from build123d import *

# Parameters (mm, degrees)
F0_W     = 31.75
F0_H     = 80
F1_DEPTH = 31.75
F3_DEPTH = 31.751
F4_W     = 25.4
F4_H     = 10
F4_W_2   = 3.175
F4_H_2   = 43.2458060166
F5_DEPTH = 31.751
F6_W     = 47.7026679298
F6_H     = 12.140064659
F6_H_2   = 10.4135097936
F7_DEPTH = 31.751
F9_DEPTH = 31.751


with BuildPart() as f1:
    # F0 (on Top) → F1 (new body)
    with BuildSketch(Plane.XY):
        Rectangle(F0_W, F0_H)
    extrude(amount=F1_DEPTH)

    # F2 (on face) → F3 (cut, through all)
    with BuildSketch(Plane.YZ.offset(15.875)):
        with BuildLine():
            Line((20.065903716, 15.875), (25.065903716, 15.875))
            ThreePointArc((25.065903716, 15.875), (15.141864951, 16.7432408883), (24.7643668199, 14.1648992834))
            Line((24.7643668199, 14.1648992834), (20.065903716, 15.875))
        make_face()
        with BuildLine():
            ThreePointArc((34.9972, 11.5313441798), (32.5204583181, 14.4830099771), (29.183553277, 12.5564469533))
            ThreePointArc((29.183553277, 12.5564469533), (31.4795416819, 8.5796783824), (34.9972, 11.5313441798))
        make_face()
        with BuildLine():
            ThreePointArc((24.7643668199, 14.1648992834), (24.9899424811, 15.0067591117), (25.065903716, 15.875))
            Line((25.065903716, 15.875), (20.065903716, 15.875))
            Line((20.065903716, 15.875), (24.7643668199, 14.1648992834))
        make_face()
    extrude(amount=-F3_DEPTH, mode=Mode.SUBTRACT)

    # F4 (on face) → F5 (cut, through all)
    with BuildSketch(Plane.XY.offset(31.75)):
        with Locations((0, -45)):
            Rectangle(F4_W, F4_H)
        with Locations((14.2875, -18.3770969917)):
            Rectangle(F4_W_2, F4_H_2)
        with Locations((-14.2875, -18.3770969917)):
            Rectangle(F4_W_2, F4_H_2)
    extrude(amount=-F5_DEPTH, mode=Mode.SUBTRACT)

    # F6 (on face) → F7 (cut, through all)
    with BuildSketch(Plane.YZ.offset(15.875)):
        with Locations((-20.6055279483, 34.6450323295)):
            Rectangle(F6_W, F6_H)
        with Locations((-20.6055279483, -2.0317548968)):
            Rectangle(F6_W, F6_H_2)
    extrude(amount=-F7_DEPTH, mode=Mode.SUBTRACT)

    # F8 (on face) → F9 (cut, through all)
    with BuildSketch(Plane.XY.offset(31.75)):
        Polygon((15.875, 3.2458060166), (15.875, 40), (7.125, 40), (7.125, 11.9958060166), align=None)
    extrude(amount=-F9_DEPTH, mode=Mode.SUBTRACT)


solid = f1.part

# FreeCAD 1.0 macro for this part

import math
import FreeCAD as App
import Part
import Sketcher
from FreeCAD import Vector
Q = App.Units.Quantity

doc = App.newDocument("Part")
body = doc.addObject("PartDesign::Body", "Body")

sketch1 = body.newObject("Sketcher::SketchObject", "Sketch")
sketch1.AttachmentSupport = (doc.getObject("XY_Plane"), [""])
sketch1.MapMode = "FlatFace"
sketch1.addGeometry([
    Part.LineSegment(Vector(-16, 40, 0), Vector(-16, -40, 0)),
    Part.LineSegment(Vector(-16, -40, 0), Vector(16, -40, 0)),
    Part.LineSegment(Vector(16, -40, 0), Vector(16, 40, 0)),
    Part.LineSegment(Vector(16, 40, 0), Vector(-16, 40, 0)),
], False)
sketch1.addConstraint([
    Sketcher.Constraint("Coincident", 0, 2, 1, 1),
    Sketcher.Constraint("Coincident", 1, 2, 2, 1),
    Sketcher.Constraint("Coincident", 2, 2, 3, 1),
    Sketcher.Constraint("Coincident", 3, 2, 0, 1),
    Sketcher.Constraint("Vertical", 0),
    Sketcher.Constraint("Horizontal", 1),
    Sketcher.Constraint("Vertical", 2),
    Sketcher.Constraint("Horizontal", 3),
    Sketcher.Constraint("Symmetric", 0, 2, 2, 2, -1, 1),
    Sketcher.Constraint("DistanceX", 1, 1, 1, 2, Q("1.25 in")),
    Sketcher.Constraint("DistanceY", 0, 2, 0, 1, 80.0),
])
pad1 = body.newObject("PartDesign::Pad", "Pad")
pad1.Profile = sketch1
pad1.Length = Q("1.25 in")

sketch2 = body.newObject("Sketcher::SketchObject", "Sketch001")
sketch2.AttachmentSupport = (doc.getObject("YZ_Plane"), [""])
sketch2.MapMode = "FlatFace"
sketch2.AttachmentOffset = App.Placement(Vector(0, 0, 0.625 * 25.4), App.Rotation())
sketch2.addGeometry([
    Part.ArcOfCircle(Part.Circle(Vector(20.1, 15.9, 0), Vector(0, 0, 1), 5), math.radians(0), math.radians(340)),
    Part.ArcOfCircle(Part.Circle(Vector(20.1, 15.9, 0), Vector(0, 0, 1), 5), math.radians(-20), math.radians(0)),
    Part.ArcOfCircle(Part.Circle(Vector(32, 11.5, 0), Vector(0, 0, 1), 3), math.radians(0), math.radians(160)),
    Part.ArcOfCircle(Part.Circle(Vector(32, 11.5, 0), Vector(0, 0, 1), 3), math.radians(160), math.radians(360)),
], False)
sketch2.addConstraint([
    Sketcher.Constraint("Tangent", 0, 1, 1, 2),
    Sketcher.Constraint("Coincident", 1, 1, 0, 2),
    Sketcher.Constraint("Tangent", 2, 1, 3, 2),
    Sketcher.Constraint("Coincident", 3, 1, 2, 2),
    Sketcher.Constraint("Horizontal", 1, 3, 0, 1),
    Sketcher.Constraint("Horizontal", 3, 3, 2, 1),
    Sketcher.Constraint("Radius", 2, Q("0.118 in")),
    Sketcher.Constraint("Radius", 0, 5.0),
    Sketcher.Constraint("DistanceY", -1, 1, 0, 3, Q("0.625 in")),
    Sketcher.Constraint("DistanceX", -1, 1, 2, 3, 32.0),
    Sketcher.Constraint("DistanceY", -1, 1, 1, 1, 14.164899),
    Sketcher.Constraint("DistanceX", 0, 1, 3, 1, 4.11765),
    Sketcher.Constraint("DistanceX", -1, 1, 0, 3, 20.065904),
    Sketcher.Constraint("DistanceY", -1, 1, 2, 3, 11.531344),
])
pocket1 = body.newObject("PartDesign::Pocket", "Pocket")
pocket1.Profile = sketch2
pocket1.Type = "ThroughAll"

sketch3 = body.newObject("Sketcher::SketchObject", "Sketch002")
sketch3.AttachmentSupport = (doc.getObject("XY_Plane"), [""])
sketch3.MapMode = "FlatFace"
sketch3.AttachmentOffset = App.Placement(Vector(0, 0, 1.25 * 25.4), App.Rotation())
sketch3.addGeometry([
    Part.LineSegment(Vector(-12.7, -40, 0), Vector(-12.7, -50, 0)),
    Part.LineSegment(Vector(-12.7, -50, 0), Vector(12.7, -50, 0)),
    Part.LineSegment(Vector(12.7, -50, 0), Vector(12.7, -40, 0)),
    Part.LineSegment(Vector(12.7, -40, 0), Vector(-12.7, -40, 0)),
    Part.LineSegment(Vector(12.7, 3.2, 0), Vector(12.7, -40, 0)),
    Part.LineSegment(Vector(12.7, -40, 0), Vector(15.9, -40, 0)),
    Part.LineSegment(Vector(15.9, -40, 0), Vector(15.9, 3.2, 0)),
    Part.LineSegment(Vector(15.9, 3.2, 0), Vector(12.7, 3.2, 0)),
    Part.LineSegment(Vector(-15.9, 3.2, 0), Vector(-15.9, -40, 0)),
    Part.LineSegment(Vector(-15.9, -40, 0), Vector(-12.7, -40, 0)),
    Part.LineSegment(Vector(-12.7, -40, 0), Vector(-12.7, 3.2, 0)),
    Part.LineSegment(Vector(-12.7, 3.2, 0), Vector(-15.9, 3.2, 0)),
], False)
sketch3.addConstraint([
    Sketcher.Constraint("Coincident", 0, 2, 1, 1),
    Sketcher.Constraint("Coincident", 1, 2, 2, 1),
    Sketcher.Constraint("Coincident", 2, 2, 3, 1),
    Sketcher.Constraint("Coincident", 3, 2, 0, 1),
    Sketcher.Constraint("Coincident", 4, 2, 5, 1),
    Sketcher.Constraint("Coincident", 5, 2, 6, 1),
    Sketcher.Constraint("Coincident", 6, 2, 7, 1),
    Sketcher.Constraint("Coincident", 7, 2, 4, 1),
    Sketcher.Constraint("Coincident", 8, 2, 9, 1),
    Sketcher.Constraint("Coincident", 9, 2, 10, 1),
    Sketcher.Constraint("Coincident", 10, 2, 11, 1),
    Sketcher.Constraint("Coincident", 11, 2, 8, 1),
    Sketcher.Constraint("Vertical", 0),
    Sketcher.Constraint("Horizontal", 1),
    Sketcher.Constraint("Vertical", 2),
    Sketcher.Constraint("Horizontal", 3),
    Sketcher.Constraint("Vertical", 4),
    Sketcher.Constraint("Horizontal", 5),
    Sketcher.Constraint("Vertical", 6),
    Sketcher.Constraint("Horizontal", 7),
    Sketcher.Constraint("Vertical", 8),
    Sketcher.Constraint("Horizontal", 9),
    Sketcher.Constraint("Vertical", 10),
    Sketcher.Constraint("Horizontal", 11),
    Sketcher.Constraint("Coincident", 4, 2, 2, 2),
    Sketcher.Constraint("Coincident", 9, 2, 3, 2),
    Sketcher.Constraint("Symmetric", 7, 2, 10, 2, -2),
    Sketcher.Constraint("Equal", 7, 9),
    Sketcher.Constraint("DistanceX", 1, 1, 1, 2, Q("1 in")),
    Sketcher.Constraint("DistanceX", 5, 1, 5, 2, Q("0.125 in")),
    Sketcher.Constraint("DistanceY", 0, 2, 0, 1, 10.0),
    Sketcher.Constraint("DistanceY", 0, 2, -1, 1, 50.0),
    Sketcher.Constraint("DistanceY", 4, 2, 4, 1, 43.245806),
])
pocket2 = body.newObject("PartDesign::Pocket", "Pocket001")
pocket2.Profile = sketch3
pocket2.Type = "ThroughAll"

sketch4 = body.newObject("Sketcher::SketchObject", "Sketch003")
sketch4.AttachmentSupport = (doc.getObject("YZ_Plane"), [""])
sketch4.MapMode = "FlatFace"
sketch4.AttachmentOffset = App.Placement(Vector(0, 0, 0.625 * 25.4), App.Rotation())
sketch4.addGeometry([
    Part.LineSegment(Vector(-44, 41, 0), Vector(-44, 29, 0)),
    Part.LineSegment(Vector(-44, 29, 0), Vector(3, 29, 0)),
    Part.LineSegment(Vector(3, 29, 0), Vector(3, 41, 0)),
    Part.LineSegment(Vector(3, 41, 0), Vector(-44, 41, 0)),
    Part.LineSegment(Vector(-44, 3, 0), Vector(-44, -7, 0)),
    Part.LineSegment(Vector(-44, -7, 0), Vector(3, -7, 0)),
    Part.LineSegment(Vector(3, -7, 0), Vector(3, 3, 0)),
    Part.LineSegment(Vector(3, 3, 0), Vector(-44, 3, 0)),
], False)
sketch4.addConstraint([
    Sketcher.Constraint("Coincident", 0, 2, 1, 1),
    Sketcher.Constraint("Coincident", 1, 2, 2, 1),
    Sketcher.Constraint("Coincident", 2, 2, 3, 1),
    Sketcher.Constraint("Coincident", 3, 2, 0, 1),
    Sketcher.Constraint("Coincident", 4, 2, 5, 1),
    Sketcher.Constraint("Coincident", 5, 2, 6, 1),
    Sketcher.Constraint("Coincident", 6, 2, 7, 1),
    Sketcher.Constraint("Coincident", 7, 2, 4, 1),
    Sketcher.Constraint("Vertical", 0),
    Sketcher.Constraint("Horizontal", 1),
    Sketcher.Constraint("Vertical", 2),
    Sketcher.Constraint("Horizontal", 3),
    Sketcher.Constraint("Vertical", 4),
    Sketcher.Constraint("Horizontal", 5),
    Sketcher.Constraint("Vertical", 6),
    Sketcher.Constraint("Horizontal", 7),
    Sketcher.Constraint("Vertical", 3, 2, 4, 2),
    Sketcher.Constraint("Vertical", 2, 2, 5, 2),
    Sketcher.Constraint("DistanceY", 6, 2, 1, 2, Q("1 in")),
    Sketcher.Constraint("DistanceY", -1, 1, 0, 2, Q("1.125 in")),
    Sketcher.Constraint("DistanceY", 4, 2, 4, 1, 10.41351),
    Sketcher.Constraint("DistanceX", 1, 1, 1, 2, 47.702668),
    Sketcher.Constraint("DistanceY", 0, 2, 0, 1, 12.140065),
    Sketcher.Constraint("DistanceX", 0, 2, -1, 1, 44.456862),
])
pocket3 = body.newObject("PartDesign::Pocket", "Pocket002")
pocket3.Profile = sketch4
pocket3.Type = "ThroughAll"

sketch5 = body.newObject("Sketcher::SketchObject", "Sketch004")
sketch5.AttachmentSupport = (doc.getObject("XY_Plane"), [""])
sketch5.MapMode = "FlatFace"
sketch5.AttachmentOffset = App.Placement(Vector(0, 0, 1.25 * 25.4), App.Rotation())
sketch5.addGeometry([
    Part.LineSegment(Vector(16, 3, 0), Vector(16, 40, 0)),
    Part.LineSegment(Vector(16, 40, 0), Vector(7, 40, 0)),
    Part.LineSegment(Vector(7, 40, 0), Vector(7, 12, 0)),
    Part.LineSegment(Vector(7, 12, 0), Vector(16, 3, 0)),
], False)
sketch5.addConstraint([
    Sketcher.Constraint("Coincident", 0, 2, 1, 1),
    Sketcher.Constraint("Coincident", 1, 2, 2, 1),
    Sketcher.Constraint("Coincident", 2, 2, 3, 1),
    Sketcher.Constraint("Coincident", 3, 2, 0, 1),
    Sketcher.Constraint("Vertical", 0),
    Sketcher.Constraint("Horizontal", 1),
    Sketcher.Constraint("Vertical", 2),
    Sketcher.Constraint("Angle", 3, Q("-45 deg")),
    Sketcher.Constraint("DistanceX", -1, 1, 0, 2, Q("0.625 in")),
    Sketcher.Constraint("DistanceX", 1, 2, 1, 1, 8.75),
    Sketcher.Constraint("DistanceY", -1, 1, 0, 2, 40.0),
    Sketcher.Constraint("DistanceY", 0, 1, 0, 2, 36.754194),
])
pocket4 = body.newObject("PartDesign::Pocket", "Pocket003")
pocket4.Profile = sketch5
pocket4.Type = "ThroughAll"

doc.recompute()
